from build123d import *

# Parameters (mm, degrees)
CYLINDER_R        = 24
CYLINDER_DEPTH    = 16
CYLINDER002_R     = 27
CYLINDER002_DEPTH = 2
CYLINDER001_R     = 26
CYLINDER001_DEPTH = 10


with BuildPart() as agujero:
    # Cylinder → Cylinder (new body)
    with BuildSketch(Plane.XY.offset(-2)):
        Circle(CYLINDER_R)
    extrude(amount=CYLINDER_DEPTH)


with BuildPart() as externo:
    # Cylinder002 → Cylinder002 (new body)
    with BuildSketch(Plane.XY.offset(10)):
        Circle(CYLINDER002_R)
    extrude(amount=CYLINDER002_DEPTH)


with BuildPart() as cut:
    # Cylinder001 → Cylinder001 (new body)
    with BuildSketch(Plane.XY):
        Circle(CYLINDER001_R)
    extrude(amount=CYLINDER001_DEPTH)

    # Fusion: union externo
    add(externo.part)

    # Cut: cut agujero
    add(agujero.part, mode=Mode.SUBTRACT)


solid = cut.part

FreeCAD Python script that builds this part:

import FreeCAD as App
import Part
import Sketcher

V = App.Vector
Q = App.Units.Quantity

doc = App.newDocument("Part")
body = doc.addObject("PartDesign::Body", "Body")

sketch1 = doc.addObject("Sketcher::SketchObject", "Sketch")
body.addObject(sketch1)
sketch1.AttachmentSupport = (doc.XY_Plane, [""])
sketch1.MapMode = "FlatFace"
sketch1.AttachmentOffset = App.Placement(V(0, 0, -2), App.Rotation())
sketch1.addGeometry(Part.Circle(V(0, 0, 0), V(0, 0, 1), 24), False)
sketch1.addConstraint([
    Sketcher.Constraint("Coincident", 0, 3, -1, 1),
    Sketcher.Constraint("Diameter", 0, Q("48 mm")),
])
pad1 = doc.addObject("PartDesign::Pad", "Pad")
body.addObject(pad1)
pad1.Profile = sketch1
pad1.Length = 16
body2 = doc.addObject("PartDesign::Body", "Body001")

sketch2 = doc.addObject("Sketcher::SketchObject", "Sketch001")
body2.addObject(sketch2)
sketch2.AttachmentSupport = (doc.getObject("XY_Plane001"), [""])
sketch2.MapMode = "FlatFace"
sketch2.AttachmentOffset = App.Placement(V(0, 0, 10), App.Rotation())
sketch2.addGeometry(Part.Circle(V(0, 0, 0), V(0, 0, 1), 27), False)
sketch2.addConstraint([
    Sketcher.Constraint("Coincident", 0, 3, -1, 1),
    Sketcher.Constraint("Diameter", 0, Q("54 mm")),
])
pad2 = doc.addObject("PartDesign::Pad", "Pad001")
body2.addObject(pad2)
pad2.Profile = sketch2
pad2.Length = 2
body3 = doc.addObject("PartDesign::Body", "Body002")

sketch3 = doc.addObject("Sketcher::SketchObject", "Sketch002")
body3.addObject(sketch3)
sketch3.AttachmentSupport = (doc.getObject("XY_Plane002"), [""])
sketch3.MapMode = "FlatFace"
sketch3.addGeometry(Part.Circle(V(0, 0, 0), V(0, 0, 1), 26), False)
sketch3.addConstraint([
    Sketcher.Constraint("Coincident", 0, 3, -1, 1),
    Sketcher.Constraint("Diameter", 0, Q("52 mm")),
])
pad3 = doc.addObject("PartDesign::Pad", "Pad002")
body3.addObject(pad3)
pad3.Profile = sketch3
pad3.Length = 10
doc.recompute()

boolean = doc.addObject("PartDesign::Boolean", "Boolean")
body3.addObject(boolean)
boolean.Type = "Fuse"
boolean.addObjects([body2])
doc.recompute()

boolean2 = doc.addObject("PartDesign::Boolean", "Boolean001")
body3.addObject(boolean2)
boolean2.Type = "Cut"
boolean2.addObjects([body])

doc.recompute()
